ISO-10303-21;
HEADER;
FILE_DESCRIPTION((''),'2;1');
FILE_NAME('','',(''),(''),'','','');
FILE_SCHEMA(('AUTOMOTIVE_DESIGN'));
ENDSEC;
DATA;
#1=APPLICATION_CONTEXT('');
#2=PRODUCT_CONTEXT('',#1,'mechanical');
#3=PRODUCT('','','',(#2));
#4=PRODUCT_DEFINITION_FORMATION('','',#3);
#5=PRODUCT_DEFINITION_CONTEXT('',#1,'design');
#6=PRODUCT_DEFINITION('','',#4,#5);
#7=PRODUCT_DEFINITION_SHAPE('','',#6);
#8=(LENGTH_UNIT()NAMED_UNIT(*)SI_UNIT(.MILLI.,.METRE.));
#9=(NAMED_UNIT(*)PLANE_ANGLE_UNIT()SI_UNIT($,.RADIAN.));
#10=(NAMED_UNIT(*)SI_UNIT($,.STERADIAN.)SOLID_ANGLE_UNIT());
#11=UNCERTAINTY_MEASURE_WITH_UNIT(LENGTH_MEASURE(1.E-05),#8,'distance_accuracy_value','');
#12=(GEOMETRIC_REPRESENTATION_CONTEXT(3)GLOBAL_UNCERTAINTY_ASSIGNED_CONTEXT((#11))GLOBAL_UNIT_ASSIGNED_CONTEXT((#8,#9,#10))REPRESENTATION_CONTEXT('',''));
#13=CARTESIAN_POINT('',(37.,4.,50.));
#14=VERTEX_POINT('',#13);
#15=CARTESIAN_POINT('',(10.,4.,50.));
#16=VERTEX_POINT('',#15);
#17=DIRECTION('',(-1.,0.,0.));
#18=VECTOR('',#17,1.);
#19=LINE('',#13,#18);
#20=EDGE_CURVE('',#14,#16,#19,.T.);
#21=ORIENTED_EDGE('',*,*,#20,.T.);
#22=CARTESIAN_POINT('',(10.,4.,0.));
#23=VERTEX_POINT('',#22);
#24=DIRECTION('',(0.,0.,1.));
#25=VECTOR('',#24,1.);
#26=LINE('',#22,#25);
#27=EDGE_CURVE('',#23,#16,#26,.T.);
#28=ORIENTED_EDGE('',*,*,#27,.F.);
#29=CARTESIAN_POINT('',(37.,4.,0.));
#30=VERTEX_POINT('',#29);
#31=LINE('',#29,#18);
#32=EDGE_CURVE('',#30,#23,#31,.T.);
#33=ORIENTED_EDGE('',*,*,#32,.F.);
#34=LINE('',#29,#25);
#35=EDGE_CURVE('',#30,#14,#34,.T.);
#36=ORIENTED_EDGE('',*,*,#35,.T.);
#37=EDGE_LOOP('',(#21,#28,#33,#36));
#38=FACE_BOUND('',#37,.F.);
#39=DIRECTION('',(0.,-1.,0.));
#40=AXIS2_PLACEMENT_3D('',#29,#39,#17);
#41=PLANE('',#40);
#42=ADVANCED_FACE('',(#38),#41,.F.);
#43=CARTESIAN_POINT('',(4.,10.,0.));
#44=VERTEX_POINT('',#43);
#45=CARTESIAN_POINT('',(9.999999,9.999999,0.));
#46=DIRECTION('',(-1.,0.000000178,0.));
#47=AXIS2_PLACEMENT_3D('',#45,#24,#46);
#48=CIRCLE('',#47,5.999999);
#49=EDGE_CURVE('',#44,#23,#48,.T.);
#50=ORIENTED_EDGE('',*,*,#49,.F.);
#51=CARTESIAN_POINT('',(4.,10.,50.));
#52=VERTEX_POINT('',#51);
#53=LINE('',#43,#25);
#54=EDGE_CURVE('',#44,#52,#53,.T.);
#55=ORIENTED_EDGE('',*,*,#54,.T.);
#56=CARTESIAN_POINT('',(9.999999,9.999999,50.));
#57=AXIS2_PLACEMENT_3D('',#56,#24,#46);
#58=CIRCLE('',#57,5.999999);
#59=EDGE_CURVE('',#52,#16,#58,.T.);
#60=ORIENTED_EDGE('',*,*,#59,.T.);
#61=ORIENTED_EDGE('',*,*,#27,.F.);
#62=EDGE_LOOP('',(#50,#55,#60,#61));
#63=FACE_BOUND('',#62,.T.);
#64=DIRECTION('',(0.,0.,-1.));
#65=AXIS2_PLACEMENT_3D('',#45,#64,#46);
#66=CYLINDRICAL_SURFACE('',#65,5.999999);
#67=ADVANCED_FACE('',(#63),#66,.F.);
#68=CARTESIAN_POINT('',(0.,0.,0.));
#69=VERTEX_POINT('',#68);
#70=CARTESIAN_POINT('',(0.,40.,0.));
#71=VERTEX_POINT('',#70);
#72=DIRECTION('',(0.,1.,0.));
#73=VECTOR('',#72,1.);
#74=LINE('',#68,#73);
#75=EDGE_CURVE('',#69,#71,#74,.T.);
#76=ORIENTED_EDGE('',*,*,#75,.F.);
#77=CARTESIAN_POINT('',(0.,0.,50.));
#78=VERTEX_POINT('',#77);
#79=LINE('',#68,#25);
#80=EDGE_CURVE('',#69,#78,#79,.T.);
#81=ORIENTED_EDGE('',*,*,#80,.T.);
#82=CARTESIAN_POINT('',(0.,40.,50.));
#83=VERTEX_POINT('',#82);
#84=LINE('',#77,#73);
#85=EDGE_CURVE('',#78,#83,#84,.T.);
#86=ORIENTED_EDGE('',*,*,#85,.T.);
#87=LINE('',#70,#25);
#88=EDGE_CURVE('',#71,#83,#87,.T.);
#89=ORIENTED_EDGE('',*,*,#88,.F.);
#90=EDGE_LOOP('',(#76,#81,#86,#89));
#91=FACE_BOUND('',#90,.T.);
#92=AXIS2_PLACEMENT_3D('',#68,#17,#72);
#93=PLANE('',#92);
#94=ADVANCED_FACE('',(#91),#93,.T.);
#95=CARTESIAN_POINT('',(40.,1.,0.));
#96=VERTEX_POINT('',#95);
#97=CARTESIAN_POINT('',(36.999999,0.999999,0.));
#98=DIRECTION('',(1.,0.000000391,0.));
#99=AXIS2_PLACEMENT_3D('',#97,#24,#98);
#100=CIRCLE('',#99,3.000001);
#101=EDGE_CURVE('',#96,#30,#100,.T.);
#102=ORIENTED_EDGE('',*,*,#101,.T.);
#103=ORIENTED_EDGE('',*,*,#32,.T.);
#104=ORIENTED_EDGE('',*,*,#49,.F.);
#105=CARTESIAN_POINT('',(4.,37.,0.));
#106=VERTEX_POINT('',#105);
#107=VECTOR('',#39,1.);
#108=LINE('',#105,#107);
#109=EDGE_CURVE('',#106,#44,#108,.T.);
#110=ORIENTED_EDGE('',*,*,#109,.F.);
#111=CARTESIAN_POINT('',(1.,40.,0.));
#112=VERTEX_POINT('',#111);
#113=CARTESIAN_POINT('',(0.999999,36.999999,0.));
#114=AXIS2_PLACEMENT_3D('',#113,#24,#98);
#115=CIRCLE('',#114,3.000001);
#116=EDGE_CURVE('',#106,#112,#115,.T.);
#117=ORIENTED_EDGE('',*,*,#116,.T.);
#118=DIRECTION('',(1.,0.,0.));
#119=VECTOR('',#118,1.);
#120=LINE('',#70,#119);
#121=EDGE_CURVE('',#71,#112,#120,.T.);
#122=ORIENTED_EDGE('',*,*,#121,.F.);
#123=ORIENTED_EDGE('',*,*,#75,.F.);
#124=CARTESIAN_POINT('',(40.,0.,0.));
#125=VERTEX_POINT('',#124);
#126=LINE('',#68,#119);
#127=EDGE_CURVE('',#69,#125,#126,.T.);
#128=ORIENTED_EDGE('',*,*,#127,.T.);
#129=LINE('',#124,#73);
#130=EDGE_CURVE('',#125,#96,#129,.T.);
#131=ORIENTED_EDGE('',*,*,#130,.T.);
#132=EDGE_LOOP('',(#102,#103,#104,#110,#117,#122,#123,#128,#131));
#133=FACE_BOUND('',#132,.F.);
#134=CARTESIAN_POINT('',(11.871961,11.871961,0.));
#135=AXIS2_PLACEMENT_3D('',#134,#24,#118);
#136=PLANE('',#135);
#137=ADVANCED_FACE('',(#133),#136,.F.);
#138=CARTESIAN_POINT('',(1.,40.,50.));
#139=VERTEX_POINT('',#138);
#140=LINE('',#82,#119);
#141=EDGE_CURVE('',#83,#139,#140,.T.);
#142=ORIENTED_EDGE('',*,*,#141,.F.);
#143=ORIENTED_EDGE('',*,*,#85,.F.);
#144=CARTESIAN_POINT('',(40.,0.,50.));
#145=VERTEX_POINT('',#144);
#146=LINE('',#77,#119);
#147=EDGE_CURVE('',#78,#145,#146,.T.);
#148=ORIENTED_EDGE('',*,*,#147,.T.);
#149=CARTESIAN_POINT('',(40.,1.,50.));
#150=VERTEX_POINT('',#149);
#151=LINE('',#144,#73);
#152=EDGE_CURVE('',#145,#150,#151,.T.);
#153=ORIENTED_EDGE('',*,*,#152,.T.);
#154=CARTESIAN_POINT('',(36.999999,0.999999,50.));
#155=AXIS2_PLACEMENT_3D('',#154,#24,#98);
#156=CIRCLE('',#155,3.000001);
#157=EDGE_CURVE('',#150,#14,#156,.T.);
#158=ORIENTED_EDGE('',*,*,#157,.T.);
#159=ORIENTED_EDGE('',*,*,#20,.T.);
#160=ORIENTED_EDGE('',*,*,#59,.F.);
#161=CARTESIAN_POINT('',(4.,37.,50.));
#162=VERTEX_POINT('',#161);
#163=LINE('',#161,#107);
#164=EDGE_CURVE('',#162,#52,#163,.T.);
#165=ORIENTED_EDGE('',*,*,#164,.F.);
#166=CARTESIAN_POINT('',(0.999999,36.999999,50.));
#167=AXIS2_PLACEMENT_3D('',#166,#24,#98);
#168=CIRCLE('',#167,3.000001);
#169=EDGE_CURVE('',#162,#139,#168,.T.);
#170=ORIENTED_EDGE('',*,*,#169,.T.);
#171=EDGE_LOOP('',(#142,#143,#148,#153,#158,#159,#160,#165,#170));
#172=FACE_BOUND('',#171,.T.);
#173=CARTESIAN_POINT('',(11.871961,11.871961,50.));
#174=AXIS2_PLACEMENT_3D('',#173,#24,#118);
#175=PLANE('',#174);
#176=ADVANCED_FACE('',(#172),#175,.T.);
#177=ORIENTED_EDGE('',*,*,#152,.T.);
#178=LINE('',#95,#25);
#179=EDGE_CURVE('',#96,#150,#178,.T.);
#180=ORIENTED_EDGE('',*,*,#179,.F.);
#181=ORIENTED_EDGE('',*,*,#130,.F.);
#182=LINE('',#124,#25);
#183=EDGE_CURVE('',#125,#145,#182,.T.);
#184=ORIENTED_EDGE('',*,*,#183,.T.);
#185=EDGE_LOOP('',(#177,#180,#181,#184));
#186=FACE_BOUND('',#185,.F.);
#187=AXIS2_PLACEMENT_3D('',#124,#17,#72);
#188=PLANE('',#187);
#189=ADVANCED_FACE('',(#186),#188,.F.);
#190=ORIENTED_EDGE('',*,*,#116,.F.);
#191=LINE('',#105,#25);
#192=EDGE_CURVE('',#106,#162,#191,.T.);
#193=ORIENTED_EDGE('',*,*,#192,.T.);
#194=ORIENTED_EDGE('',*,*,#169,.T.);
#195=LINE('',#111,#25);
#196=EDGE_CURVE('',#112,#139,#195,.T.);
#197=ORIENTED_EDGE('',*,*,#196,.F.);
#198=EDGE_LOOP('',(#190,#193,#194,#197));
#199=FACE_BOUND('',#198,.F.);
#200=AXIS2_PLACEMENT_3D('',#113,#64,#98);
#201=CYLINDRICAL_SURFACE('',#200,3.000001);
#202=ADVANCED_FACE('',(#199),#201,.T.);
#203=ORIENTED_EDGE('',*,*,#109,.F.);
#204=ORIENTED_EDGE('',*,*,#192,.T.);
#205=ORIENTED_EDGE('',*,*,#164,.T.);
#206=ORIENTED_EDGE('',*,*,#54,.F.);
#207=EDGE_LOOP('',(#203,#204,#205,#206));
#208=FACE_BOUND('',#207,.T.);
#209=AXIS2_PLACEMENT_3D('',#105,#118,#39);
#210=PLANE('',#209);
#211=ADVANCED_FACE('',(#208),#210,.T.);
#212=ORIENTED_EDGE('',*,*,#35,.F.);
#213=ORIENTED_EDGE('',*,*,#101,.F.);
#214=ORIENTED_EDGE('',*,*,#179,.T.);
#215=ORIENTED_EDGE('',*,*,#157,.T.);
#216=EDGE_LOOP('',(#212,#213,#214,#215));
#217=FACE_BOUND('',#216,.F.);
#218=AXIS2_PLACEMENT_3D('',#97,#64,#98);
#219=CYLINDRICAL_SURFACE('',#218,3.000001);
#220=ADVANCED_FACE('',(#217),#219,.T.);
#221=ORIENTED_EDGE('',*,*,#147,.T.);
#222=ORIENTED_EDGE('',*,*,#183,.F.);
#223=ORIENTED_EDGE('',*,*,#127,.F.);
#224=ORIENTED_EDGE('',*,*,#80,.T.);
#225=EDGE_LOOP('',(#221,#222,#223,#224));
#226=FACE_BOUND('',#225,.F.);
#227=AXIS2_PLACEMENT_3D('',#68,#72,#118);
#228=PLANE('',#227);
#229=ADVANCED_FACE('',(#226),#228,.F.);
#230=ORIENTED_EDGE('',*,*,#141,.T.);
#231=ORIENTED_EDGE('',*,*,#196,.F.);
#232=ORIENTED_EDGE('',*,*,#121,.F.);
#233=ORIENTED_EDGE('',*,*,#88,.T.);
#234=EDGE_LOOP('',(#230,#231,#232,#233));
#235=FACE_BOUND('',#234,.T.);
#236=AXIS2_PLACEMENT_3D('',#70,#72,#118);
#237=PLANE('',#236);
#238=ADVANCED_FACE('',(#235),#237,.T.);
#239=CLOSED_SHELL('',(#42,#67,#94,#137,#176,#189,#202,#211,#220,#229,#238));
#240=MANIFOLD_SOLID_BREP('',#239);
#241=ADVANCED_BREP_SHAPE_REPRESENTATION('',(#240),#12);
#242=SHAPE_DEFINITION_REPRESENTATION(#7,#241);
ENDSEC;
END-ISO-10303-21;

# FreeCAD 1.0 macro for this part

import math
import FreeCAD as App
import Part
import Sketcher

doc = App.newDocument("Part")
body = doc.addObject("PartDesign::Body", "Body")

sketch1 = doc.addObject("Sketcher::SketchObject", "Sketch")
body.addObject(sketch1)
sketch1.AttachmentSupport = (doc.XY_Plane, [""])
sketch1.MapMode = "FlatFace"
sketch1.addGeometry([
    Part.LineSegment(App.Vector(0, 0, 0), App.Vector(40, 0, 0)),
    Part.LineSegment(App.Vector(40, 0, 0), App.Vector(40, 1, 0)),
    Part.ArcOfCircle(Part.Circle(App.Vector(36.999999, 0.999999, 0), App.Vector(0, 0, 1), 3.000001), math.radians(0.000022), math.radians(89.999978)),
    Part.LineSegment(App.Vector(37, 4, 0), App.Vector(10, 4, 0)),
    Part.ArcOfCircle(Part.Circle(App.Vector(9.999999, 9.999999, 0), App.Vector(0, 0, 1), 5.999999), math.radians(179.99999), math.radians(270.00001)),
    Part.LineSegment(App.Vector(4, 10, 0), App.Vector(4, 37, 0)),
    Part.ArcOfCircle(Part.Circle(App.Vector(0.999999, 36.999999, 0), App.Vector(0, 0, 1), 3.000001), math.radians(0.000022), math.radians(89.999978)),
    Part.LineSegment(App.Vector(1, 40, 0), App.Vector(0, 40, 0)),
    Part.LineSegment(App.Vector(0, 40, 0), App.Vector(0, 0, 0)),
], False)
sketch1.addConstraint([
    Sketcher.Constraint("Coincident", 0, 2, 1, 1),
    Sketcher.Constraint("Tangent", 1, 2, 2, 1),
    Sketcher.Constraint("Tangent", 2, 2, 3, 1),
    Sketcher.Constraint("Tangent", 3, 2, 4, 2),
    Sketcher.Constraint("Tangent", 4, 1, 5, 1),
    Sketcher.Constraint("Tangent", 5, 2, 6, 1),
    Sketcher.Constraint("Tangent", 6, 2, 7, 1),
    Sketcher.Constraint("Coincident", 7, 2, 8, 1),
    Sketcher.Constraint("Coincident", 8, 2, 0, 1),
    Sketcher.Constraint("Horizontal", 0),
    Sketcher.Constraint("Vertical", 1),
    Sketcher.Constraint("Horizontal", 3),
    Sketcher.Constraint("Vertical", 5),
    Sketcher.Constraint("Horizontal", 7),
    Sketcher.Constraint("Vertical", 8),
    Sketcher.Constraint("Coincident", 8, 2, -1, 1),
    Sketcher.Constraint("Equal", 2, 6),
    Sketcher.Constraint("Equal", 7, 1),
    Sketcher.Constraint("Equal", 3, 5),
    Sketcher.Constraint("Radius", 2, 3.000001),
    Sketcher.Constraint("Radius", 4, 5.999999),
    Sketcher.Constraint("DistanceX", 0, 1, 0, 2, 40.0),
    Sketcher.Constraint("DistanceX", 3, 2, 3, 1, 27.0),
])
pad1 = doc.addObject("PartDesign::Pad", "Pad")
body.addObject(pad1)
pad1.Profile = sketch1
pad1.Length = 50

doc.recompute()
